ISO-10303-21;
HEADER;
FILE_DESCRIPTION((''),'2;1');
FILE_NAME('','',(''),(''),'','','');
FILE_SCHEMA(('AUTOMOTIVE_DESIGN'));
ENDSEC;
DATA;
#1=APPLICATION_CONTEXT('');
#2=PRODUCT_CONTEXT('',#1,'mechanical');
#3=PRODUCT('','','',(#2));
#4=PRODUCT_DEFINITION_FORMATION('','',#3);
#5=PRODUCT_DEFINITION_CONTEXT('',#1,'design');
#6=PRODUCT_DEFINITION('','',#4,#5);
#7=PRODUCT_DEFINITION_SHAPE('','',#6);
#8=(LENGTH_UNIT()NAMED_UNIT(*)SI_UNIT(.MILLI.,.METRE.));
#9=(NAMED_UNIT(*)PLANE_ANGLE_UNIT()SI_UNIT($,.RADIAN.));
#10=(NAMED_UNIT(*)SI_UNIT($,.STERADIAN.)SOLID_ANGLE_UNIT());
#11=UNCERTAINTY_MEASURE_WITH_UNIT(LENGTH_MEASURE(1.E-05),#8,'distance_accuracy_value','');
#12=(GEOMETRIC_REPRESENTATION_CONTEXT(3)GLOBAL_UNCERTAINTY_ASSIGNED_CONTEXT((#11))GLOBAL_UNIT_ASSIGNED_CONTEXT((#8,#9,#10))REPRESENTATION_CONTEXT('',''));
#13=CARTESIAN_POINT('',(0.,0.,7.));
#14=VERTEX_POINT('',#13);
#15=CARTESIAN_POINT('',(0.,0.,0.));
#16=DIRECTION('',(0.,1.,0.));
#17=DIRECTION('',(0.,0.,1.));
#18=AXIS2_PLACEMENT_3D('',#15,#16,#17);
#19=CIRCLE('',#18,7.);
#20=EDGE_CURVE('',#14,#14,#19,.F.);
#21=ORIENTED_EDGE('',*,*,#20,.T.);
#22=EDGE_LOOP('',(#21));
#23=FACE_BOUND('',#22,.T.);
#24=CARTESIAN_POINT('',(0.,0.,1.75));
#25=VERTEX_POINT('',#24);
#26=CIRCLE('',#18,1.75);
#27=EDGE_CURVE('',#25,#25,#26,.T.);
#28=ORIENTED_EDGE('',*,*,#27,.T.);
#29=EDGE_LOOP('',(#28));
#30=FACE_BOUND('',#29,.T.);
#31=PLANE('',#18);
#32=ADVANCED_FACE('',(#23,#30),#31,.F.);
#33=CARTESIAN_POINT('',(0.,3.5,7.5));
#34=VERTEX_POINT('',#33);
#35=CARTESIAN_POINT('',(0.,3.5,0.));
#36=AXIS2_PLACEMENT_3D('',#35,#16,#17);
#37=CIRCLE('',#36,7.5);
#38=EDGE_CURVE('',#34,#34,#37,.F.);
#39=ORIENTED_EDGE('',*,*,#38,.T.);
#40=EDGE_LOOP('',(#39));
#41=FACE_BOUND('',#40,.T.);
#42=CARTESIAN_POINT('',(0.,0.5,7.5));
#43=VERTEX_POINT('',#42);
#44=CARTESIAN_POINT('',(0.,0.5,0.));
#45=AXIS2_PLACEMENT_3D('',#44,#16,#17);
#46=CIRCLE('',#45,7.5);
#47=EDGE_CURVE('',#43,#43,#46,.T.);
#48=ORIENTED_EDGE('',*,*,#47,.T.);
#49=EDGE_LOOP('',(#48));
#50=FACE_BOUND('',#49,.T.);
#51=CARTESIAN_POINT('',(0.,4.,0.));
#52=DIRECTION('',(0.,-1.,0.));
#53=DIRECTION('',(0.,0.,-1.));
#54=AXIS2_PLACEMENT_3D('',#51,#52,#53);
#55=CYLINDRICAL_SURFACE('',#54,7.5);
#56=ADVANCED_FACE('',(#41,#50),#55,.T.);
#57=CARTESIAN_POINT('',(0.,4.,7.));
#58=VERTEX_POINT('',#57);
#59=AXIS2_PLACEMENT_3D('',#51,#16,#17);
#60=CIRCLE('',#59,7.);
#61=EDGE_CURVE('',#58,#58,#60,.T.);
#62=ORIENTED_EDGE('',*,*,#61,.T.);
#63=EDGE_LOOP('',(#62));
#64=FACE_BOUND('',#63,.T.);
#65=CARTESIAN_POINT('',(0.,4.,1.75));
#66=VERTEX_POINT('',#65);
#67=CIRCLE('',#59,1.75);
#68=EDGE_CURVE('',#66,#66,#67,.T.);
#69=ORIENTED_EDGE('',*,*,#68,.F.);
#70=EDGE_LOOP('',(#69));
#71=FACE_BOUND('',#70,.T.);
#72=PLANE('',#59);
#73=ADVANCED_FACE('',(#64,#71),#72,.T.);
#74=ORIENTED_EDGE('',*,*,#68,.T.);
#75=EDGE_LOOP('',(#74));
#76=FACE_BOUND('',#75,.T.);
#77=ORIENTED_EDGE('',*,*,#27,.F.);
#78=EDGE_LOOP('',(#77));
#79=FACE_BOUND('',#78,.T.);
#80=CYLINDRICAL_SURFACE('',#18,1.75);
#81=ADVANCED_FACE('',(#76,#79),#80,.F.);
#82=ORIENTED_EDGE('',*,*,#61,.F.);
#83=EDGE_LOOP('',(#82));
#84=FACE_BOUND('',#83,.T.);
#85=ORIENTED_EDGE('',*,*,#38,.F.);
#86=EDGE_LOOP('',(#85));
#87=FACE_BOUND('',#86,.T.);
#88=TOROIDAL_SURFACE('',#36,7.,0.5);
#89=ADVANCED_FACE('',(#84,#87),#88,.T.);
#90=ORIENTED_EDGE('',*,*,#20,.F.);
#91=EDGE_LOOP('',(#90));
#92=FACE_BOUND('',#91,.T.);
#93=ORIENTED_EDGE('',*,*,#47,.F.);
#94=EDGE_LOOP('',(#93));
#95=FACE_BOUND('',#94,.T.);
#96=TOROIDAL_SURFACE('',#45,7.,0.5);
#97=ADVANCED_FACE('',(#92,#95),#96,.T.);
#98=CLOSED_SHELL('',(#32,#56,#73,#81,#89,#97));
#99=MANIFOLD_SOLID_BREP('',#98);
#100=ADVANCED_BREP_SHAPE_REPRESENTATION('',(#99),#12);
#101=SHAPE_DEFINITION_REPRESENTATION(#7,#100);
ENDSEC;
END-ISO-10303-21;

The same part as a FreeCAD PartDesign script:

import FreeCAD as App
import Part
import Sketcher
from FreeCAD import Vector
Q = App.Units.Quantity


def edges_at(feature, points):
    """Names of the edges that pass closest to the given points."""
    edges = feature.Shape.Edges
    near = lambda p: min(range(len(edges)), key=lambda i: edges[i].distToShape(Part.Vertex(*p))[0])
    return sorted({f"Edge{near(p) + 1}" for p in points})

doc = App.newDocument("Part")
params = doc.addObject("Spreadsheet::Sheet", "Params")
for row, (alias, value) in enumerate([
    ("sketch1_diameter", "15 mm"),
    ("pad1_length", "4 mm"),
    ("sketch2_diameter", "3.5 mm"),
    ("pocket1_length", "4 mm"),
    ("fillet_radius", "0.5 mm"),
], start=1):
    params.set(f"A{row}", alias)
    params.set(f"B{row}", "=" + value)
    params.setAlias(f"B{row}", alias)

body = doc.addObject("PartDesign::Body", "Body")

# Sketch on XZ plane
sketch1 = body.newObject("Sketcher::SketchObject", "Sketch")
sketch1.AttachmentSupport = (doc.getObject("XZ_Plane"), [""])
sketch1.MapMode = "FlatFace"
sketch1.addGeometry(Part.Circle(Vector(0, 0, 0), Vector(0, 0, 1), 8), False)
sketch1.addConstraint(Sketcher.Constraint("Coincident", 0, 3, -1, 1))
sketch1.addConstraint(Sketcher.Constraint("Diameter", 0, Q("15 mm")))
sketch1.setExpression("Constraints[1]", "Params.sketch1_diameter")
pad1 = body.newObject("PartDesign::Pad", "Pad")
pad1.Profile = sketch1
pad1.setExpression("Length", "Params.pad1_length")
pad1.Reversed = True

# Sketch on XZ plane
sketch2 = body.newObject("Sketcher::SketchObject", "Sketch001")
sketch2.AttachmentSupport = (doc.getObject("XZ_Plane"), [""])
sketch2.MapMode = "FlatFace"
sketch2.AttachmentOffset = App.Placement(Vector(0, 0, -4), App.Rotation())
sketch2.addGeometry(Part.Circle(Vector(0, 0, 0), Vector(0, 0, 1), 1.8), False)
sketch2.addConstraint(Sketcher.Constraint("Coincident", 0, 3, -1, 1))
sketch2.addConstraint(Sketcher.Constraint("Diameter", 0, Q("3.5 mm")))
sketch2.setExpression("Constraints[1]", "Params.sketch2_diameter")
pocket1 = body.newObject("PartDesign::Pocket", "Pocket")
pocket1.Profile = sketch2
pocket1.setExpression("Length", "Params.pocket1_length")
pocket1.Reversed = True
doc.recompute()

fillet = body.newObject("PartDesign::Fillet", "Fillet")
fillet.Base = (pocket1, edges_at(pocket1, [(-7.5, 0, 0), (-7.5, 4, 0)]))
fillet.setExpression("Radius", "Params.fillet_radius")

doc.recompute()
